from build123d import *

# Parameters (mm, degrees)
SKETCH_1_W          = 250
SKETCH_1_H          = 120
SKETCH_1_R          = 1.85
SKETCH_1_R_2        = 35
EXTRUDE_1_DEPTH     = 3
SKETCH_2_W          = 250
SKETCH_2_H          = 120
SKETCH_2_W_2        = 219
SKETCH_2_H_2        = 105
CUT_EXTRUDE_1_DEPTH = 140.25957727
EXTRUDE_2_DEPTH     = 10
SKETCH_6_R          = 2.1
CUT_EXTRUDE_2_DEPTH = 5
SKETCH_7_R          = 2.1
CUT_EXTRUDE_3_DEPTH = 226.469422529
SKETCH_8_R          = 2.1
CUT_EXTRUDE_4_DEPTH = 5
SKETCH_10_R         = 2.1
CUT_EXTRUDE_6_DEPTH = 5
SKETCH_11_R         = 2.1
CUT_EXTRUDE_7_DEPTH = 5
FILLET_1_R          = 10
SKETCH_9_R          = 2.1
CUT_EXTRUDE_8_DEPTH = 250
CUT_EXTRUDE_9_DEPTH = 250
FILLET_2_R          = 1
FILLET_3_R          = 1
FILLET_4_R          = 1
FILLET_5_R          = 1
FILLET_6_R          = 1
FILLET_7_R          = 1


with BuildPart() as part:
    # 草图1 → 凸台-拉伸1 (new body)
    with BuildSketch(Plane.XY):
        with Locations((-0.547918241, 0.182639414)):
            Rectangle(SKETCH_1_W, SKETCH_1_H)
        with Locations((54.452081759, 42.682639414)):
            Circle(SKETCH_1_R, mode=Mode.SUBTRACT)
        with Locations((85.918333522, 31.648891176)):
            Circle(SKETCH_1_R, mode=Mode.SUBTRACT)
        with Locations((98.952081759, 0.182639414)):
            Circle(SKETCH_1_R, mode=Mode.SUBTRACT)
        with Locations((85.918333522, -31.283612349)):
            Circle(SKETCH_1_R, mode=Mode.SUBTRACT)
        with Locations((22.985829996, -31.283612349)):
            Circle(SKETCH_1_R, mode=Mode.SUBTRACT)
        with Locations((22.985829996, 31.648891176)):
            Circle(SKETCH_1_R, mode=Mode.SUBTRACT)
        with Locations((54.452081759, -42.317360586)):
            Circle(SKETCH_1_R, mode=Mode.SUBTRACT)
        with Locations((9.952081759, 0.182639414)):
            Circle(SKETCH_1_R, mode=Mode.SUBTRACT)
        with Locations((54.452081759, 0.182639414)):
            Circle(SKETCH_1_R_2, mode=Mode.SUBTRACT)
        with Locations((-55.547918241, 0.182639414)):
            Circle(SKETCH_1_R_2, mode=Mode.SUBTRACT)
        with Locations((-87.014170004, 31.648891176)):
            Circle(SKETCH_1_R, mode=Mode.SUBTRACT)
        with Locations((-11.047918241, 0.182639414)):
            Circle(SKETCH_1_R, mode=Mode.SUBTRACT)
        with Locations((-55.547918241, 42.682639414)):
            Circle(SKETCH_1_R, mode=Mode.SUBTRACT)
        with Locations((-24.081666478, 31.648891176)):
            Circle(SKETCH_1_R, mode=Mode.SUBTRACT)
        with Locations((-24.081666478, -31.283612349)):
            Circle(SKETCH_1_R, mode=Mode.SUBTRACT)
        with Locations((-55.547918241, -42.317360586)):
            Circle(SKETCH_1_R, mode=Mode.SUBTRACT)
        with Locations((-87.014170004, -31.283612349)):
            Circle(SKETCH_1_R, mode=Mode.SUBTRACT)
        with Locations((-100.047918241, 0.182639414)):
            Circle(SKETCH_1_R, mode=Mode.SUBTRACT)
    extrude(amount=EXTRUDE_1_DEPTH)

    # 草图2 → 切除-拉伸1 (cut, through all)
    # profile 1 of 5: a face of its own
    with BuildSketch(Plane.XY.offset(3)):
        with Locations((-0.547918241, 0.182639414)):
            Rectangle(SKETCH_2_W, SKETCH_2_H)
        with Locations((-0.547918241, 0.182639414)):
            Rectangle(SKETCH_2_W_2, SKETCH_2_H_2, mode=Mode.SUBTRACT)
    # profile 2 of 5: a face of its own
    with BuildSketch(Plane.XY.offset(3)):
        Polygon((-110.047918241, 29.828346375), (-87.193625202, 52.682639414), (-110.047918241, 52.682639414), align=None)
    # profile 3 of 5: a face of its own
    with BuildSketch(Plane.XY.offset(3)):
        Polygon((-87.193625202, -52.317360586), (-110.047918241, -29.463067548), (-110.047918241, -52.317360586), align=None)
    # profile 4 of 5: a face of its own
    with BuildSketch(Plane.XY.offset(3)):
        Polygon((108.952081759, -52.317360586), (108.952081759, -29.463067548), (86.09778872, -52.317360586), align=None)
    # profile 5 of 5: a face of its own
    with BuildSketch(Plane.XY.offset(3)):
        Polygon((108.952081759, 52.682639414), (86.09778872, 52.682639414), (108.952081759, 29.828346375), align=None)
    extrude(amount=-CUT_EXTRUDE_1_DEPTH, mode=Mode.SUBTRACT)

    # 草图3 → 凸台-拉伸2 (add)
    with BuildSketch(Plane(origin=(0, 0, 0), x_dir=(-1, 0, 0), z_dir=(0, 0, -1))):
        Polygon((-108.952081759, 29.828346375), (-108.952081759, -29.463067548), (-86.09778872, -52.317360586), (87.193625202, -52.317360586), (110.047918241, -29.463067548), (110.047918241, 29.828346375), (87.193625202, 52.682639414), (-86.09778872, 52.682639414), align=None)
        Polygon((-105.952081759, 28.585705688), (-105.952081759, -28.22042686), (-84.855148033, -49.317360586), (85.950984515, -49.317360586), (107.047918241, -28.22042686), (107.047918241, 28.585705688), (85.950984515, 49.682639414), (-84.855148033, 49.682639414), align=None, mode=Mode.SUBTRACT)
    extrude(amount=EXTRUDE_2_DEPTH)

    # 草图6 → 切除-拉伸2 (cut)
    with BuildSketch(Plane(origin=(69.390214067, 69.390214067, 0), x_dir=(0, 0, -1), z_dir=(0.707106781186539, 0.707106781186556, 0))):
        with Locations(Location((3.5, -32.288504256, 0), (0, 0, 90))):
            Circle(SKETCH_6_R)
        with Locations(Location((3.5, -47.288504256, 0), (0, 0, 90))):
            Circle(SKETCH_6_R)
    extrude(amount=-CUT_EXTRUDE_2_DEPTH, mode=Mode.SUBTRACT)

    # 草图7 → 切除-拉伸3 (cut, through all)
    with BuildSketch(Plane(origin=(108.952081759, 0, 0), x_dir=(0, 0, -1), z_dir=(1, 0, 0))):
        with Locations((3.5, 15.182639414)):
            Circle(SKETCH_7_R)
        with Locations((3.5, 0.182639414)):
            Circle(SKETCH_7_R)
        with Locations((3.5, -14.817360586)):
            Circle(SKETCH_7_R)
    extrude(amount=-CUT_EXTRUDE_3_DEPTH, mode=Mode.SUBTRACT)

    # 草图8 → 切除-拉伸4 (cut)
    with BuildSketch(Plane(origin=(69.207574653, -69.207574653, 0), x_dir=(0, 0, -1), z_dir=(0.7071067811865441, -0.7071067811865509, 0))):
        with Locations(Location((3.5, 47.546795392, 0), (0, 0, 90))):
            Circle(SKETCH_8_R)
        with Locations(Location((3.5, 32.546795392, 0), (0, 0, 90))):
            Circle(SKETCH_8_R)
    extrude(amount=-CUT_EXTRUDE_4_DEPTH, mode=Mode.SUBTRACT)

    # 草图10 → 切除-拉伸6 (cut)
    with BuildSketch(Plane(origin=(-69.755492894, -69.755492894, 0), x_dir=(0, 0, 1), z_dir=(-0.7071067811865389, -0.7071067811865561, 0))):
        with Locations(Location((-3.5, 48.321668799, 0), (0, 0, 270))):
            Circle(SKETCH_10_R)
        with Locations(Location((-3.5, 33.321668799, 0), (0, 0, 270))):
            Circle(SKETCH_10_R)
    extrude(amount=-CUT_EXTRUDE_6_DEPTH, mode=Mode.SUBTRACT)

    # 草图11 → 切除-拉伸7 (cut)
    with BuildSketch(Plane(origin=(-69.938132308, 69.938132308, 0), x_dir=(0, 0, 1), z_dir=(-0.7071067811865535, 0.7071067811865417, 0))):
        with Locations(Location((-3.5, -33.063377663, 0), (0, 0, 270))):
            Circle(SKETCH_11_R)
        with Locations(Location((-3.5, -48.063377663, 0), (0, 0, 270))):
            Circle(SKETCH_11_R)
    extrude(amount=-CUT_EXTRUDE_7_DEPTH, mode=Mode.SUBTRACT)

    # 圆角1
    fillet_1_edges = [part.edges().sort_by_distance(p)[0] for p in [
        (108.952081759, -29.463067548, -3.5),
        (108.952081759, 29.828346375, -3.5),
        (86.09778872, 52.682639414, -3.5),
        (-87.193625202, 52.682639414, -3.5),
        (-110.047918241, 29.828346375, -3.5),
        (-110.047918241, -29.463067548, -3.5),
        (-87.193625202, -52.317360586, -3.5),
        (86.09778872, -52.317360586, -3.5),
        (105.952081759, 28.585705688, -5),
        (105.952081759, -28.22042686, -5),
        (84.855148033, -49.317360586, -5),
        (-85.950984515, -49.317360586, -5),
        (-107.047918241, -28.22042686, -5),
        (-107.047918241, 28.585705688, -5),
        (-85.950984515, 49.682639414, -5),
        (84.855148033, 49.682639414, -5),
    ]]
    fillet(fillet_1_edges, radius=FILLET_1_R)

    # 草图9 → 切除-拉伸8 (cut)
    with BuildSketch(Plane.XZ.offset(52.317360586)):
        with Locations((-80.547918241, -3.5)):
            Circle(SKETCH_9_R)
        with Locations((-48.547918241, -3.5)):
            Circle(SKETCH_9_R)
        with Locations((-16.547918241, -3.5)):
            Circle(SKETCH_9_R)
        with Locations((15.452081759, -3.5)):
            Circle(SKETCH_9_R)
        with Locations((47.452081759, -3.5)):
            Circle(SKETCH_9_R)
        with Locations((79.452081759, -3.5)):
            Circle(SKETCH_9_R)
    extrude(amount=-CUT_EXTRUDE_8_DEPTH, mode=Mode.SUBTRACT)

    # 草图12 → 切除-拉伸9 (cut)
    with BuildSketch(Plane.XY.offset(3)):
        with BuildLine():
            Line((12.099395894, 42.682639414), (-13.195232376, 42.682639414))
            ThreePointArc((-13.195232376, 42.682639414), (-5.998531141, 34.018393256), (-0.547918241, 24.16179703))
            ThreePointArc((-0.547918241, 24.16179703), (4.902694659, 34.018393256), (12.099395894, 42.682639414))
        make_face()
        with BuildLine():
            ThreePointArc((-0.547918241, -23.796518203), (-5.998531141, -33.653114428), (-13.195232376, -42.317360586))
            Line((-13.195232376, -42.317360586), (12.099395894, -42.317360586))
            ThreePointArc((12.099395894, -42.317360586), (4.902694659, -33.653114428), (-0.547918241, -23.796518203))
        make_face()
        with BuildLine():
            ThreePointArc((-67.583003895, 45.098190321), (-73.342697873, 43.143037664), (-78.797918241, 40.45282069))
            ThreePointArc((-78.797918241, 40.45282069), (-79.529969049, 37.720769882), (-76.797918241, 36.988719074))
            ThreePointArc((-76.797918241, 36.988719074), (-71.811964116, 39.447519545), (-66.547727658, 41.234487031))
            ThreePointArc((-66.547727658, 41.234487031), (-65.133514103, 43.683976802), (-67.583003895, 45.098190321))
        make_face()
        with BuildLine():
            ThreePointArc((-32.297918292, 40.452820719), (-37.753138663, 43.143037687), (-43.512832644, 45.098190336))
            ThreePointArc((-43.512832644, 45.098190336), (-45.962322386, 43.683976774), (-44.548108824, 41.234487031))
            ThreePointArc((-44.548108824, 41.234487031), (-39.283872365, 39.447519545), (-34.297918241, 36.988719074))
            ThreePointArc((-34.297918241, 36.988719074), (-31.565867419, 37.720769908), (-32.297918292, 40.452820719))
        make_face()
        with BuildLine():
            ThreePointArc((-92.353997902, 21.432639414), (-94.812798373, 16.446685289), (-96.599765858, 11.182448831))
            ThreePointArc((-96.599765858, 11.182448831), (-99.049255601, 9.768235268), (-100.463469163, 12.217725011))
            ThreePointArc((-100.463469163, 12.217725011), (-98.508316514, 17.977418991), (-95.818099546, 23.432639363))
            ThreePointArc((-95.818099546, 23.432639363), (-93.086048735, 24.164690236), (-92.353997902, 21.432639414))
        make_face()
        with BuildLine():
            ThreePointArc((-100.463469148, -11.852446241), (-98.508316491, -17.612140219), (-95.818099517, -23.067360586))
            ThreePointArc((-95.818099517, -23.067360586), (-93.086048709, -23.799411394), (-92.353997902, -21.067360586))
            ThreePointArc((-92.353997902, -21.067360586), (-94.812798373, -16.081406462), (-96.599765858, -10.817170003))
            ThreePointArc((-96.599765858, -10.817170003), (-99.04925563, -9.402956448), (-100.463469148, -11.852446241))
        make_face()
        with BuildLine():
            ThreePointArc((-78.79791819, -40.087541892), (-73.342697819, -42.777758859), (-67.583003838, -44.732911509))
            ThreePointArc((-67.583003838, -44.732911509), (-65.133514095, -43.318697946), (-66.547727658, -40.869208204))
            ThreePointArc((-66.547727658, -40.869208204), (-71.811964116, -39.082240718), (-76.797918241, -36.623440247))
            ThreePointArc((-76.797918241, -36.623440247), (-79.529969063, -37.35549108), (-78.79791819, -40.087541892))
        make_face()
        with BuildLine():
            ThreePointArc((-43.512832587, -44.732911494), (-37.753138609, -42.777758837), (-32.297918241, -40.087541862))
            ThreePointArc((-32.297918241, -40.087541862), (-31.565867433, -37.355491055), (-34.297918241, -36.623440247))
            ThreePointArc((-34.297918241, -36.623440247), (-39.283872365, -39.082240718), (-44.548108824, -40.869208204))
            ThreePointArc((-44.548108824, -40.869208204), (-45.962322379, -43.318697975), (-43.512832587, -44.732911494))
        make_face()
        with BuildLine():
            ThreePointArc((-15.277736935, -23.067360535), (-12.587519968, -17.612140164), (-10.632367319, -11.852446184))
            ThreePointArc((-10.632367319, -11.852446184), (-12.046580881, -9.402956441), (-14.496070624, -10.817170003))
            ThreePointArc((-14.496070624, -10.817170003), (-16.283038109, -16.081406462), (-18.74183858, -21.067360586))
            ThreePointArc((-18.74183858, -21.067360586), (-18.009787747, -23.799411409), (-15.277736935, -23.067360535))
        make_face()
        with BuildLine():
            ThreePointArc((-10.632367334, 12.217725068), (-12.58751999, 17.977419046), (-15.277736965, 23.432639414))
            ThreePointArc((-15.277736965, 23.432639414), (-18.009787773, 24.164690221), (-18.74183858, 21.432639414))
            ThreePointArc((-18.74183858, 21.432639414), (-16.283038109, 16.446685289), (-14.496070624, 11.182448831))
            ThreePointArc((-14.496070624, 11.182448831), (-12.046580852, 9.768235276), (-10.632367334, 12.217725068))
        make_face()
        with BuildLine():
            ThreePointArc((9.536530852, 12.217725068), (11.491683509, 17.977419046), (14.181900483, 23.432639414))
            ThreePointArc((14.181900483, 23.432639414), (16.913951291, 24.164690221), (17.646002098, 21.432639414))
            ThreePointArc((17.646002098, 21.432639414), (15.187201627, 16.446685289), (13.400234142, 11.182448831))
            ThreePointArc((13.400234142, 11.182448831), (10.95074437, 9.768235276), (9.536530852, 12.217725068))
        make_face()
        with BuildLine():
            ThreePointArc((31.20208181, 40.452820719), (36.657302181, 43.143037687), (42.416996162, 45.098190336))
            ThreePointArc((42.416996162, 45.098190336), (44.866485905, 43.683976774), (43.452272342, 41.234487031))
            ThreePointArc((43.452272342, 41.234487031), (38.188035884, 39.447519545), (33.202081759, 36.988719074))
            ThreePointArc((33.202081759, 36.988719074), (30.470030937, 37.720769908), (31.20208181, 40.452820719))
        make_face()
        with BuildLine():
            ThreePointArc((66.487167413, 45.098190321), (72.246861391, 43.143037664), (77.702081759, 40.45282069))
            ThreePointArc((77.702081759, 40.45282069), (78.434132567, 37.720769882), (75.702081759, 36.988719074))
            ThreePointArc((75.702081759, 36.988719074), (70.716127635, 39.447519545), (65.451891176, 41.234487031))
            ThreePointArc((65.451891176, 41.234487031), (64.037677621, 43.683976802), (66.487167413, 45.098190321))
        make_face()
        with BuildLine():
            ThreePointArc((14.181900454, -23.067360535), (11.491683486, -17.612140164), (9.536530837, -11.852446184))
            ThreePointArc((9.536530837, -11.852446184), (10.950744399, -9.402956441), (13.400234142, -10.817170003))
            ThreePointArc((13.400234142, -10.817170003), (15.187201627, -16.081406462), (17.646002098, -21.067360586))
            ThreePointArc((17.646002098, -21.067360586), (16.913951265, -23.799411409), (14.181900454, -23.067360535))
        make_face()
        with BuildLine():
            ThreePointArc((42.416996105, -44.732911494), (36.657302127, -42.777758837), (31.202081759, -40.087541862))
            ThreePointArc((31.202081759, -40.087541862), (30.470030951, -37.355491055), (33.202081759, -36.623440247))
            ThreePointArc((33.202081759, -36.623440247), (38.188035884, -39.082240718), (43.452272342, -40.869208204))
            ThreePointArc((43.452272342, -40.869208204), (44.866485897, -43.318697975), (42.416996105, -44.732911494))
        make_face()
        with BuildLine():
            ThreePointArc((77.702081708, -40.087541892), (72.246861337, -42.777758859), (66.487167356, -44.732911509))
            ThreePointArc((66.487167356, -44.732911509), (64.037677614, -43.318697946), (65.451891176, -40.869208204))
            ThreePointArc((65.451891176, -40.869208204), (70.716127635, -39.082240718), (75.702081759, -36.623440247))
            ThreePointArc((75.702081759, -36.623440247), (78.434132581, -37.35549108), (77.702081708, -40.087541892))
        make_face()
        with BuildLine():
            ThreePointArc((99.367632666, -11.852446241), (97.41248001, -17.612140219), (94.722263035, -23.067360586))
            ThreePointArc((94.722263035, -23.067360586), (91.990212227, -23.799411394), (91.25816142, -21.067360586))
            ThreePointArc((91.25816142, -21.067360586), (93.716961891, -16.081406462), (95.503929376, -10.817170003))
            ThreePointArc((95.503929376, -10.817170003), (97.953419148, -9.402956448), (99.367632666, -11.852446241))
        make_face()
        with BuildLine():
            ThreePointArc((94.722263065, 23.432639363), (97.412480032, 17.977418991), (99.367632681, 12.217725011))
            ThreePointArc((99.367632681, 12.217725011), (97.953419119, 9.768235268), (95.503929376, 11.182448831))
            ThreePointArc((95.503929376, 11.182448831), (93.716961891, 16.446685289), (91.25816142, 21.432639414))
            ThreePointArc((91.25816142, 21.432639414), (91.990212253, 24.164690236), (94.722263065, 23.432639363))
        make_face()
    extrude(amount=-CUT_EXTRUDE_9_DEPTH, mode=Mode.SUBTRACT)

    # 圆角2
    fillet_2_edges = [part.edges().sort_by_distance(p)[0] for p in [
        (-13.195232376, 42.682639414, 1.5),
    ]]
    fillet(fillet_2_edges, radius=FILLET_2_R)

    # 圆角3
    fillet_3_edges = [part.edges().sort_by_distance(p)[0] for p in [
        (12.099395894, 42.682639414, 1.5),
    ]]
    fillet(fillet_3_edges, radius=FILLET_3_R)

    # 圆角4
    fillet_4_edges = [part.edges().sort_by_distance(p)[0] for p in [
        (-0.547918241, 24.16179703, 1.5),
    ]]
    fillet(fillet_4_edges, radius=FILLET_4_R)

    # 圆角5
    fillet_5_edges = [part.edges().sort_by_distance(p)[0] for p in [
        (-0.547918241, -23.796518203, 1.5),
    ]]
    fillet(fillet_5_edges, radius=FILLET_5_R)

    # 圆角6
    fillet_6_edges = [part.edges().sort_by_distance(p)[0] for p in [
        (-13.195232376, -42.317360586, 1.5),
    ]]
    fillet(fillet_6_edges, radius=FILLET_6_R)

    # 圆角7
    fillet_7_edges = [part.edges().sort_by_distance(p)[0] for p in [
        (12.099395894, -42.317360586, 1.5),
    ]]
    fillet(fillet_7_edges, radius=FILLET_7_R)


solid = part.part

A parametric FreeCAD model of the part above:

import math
import FreeCAD as App
import Part
import Sketcher

V = App.Vector
Q = App.Units.Quantity


def edges_at(feature, points):
    """Names of the edges that pass closest to the given points."""
    edges = feature.Shape.Edges
    near = lambda p: min(range(len(edges)), key=lambda i: edges[i].distToShape(Part.Vertex(*p))[0])
    return sorted({f"Edge{near(p) + 1}" for p in points})


def add_polygon(sketch, points):
    """Adds a closed chain of lines whose ends are joined by coincident constraints."""
    first, n = sketch.GeometryCount, len(points)
    for a, b in zip(points, points[1:] + points[:1]):
        sketch.addGeometry(Part.LineSegment(App.Vector(*a, 0), App.Vector(*b, 0)), False)
    for i in range(n):
        sketch.addConstraint(Sketcher.Constraint("Coincident", first + i, 2, first + (i + 1) % n, 1))

doc = App.newDocument("Part")
body = doc.addObject("PartDesign::Body", "Body")

sketch1 = body.newObject("Sketcher::SketchObject", "Sketch")
sketch1.AttachmentSupport = (doc.getObject("XY_Plane"), [""])
sketch1.MapMode = "FlatFace"
add_polygon(sketch1, [(-125.5, 60.2), (-125.5, -59.8), (124.5, -59.8), (124.5, 60.2)])
sketch1.addGeometry(Part.Circle(V(-55.5, -42.3, 0), V(0, 0, 1), 1.9), False)
sketch1.addGeometry(Part.Circle(V(-87, -31.3, 0), V(0, 0, 1), 1.9), False)
sketch1.addGeometry(Part.Circle(V(-24.1, -31.3, 0), V(0, 0, 1), 1.9), False)
sketch1.addGeometry(Part.Circle(V(23, -31.3, 0), V(0, 0, 1), 1.9), False)
sketch1.addGeometry(Part.Circle(V(54.5, -42.3, 0), V(0, 0, 1), 1.9), False)
sketch1.addGeometry(Part.Circle(V(85.9, -31.3, 0), V(0, 0, 1), 1.9), False)
sketch1.addGeometry(Part.Circle(V(-100, 0.2, 0), V(0, 0, 1), 1.9), False)
sketch1.addGeometry(Part.Circle(V(-55.5, 0.2, 0), V(0, 0, 1), 35), False)
sketch1.addGeometry(Part.Circle(V(-11, 0.2, 0), V(0, 0, 1), 1.9), False)
sketch1.addGeometry(Part.Circle(V(-87, 31.6, 0), V(0, 0, 1), 1.9), False)
sketch1.addGeometry(Part.Circle(V(-55.5, 42.7, 0), V(0, 0, 1), 1.9), False)
sketch1.addGeometry(Part.Circle(V(-24.1, 31.6, 0), V(0, 0, 1), 1.9), False)
sketch1.addGeometry(Part.Circle(V(10, 0.2, 0), V(0, 0, 1), 1.9), False)
sketch1.addGeometry(Part.Circle(V(54.5, 0.2, 0), V(0, 0, 1), 35), False)
sketch1.addGeometry(Part.Circle(V(99, 0.2, 0), V(0, 0, 1), 1.9), False)
sketch1.addGeometry(Part.Circle(V(23, 31.6, 0), V(0, 0, 1), 1.9), False)
sketch1.addGeometry(Part.Circle(V(85.9, 31.6, 0), V(0, 0, 1), 1.9), False)
sketch1.addGeometry(Part.Circle(V(54.5, 42.7, 0), V(0, 0, 1), 1.9), False)
sketch1.addConstraint([
    Sketcher.Constraint("Vertical", 0),
    Sketcher.Constraint("Horizontal", 1),
    Sketcher.Constraint("Vertical", 2),
    Sketcher.Constraint("Horizontal", 3),
    Sketcher.Constraint("Equal", 4, 5),
    Sketcher.Constraint("Equal", 5, 6),
    Sketcher.Constraint("Equal", 6, 7),
    Sketcher.Constraint("Equal", 7, 8),
    Sketcher.Constraint("Equal", 8, 9),
    Sketcher.Constraint("Equal", 9, 10),
    Sketcher.Constraint("Equal", 10, 12),
    Sketcher.Constraint("Equal", 12, 13),
    Sketcher.Constraint("Equal", 13, 14),
    Sketcher.Constraint("Equal", 14, 15),
    Sketcher.Constraint("Equal", 15, 16),
    Sketcher.Constraint("Equal", 11, 17),
    Sketcher.Constraint("Equal", 16, 18),
    Sketcher.Constraint("Equal", 18, 19),
    Sketcher.Constraint("Equal", 19, 20),
    Sketcher.Constraint("Equal", 20, 21),
    Sketcher.Constraint("Horizontal", 5, 3, 6, 3),
    Sketcher.Constraint("Horizontal", 6, 3, 7, 3),
    Sketcher.Constraint("Horizontal", 4, 3, 8, 3),
    Sketcher.Constraint("Horizontal", 7, 3, 9, 3),
    Sketcher.Constraint("Horizontal", 10, 3, 11, 3),
    Sketcher.Constraint("Horizontal", 11, 3, 12, 3),
    Sketcher.Constraint("Horizontal", 13, 3, 15, 3),
    Sketcher.Constraint("Horizontal", 12, 3, 16, 3),
    Sketcher.Constraint("Horizontal", 16, 3, 17, 3),
    Sketcher.Constraint("Horizontal", 17, 3, 18, 3),
    Sketcher.Constraint("Horizontal", 15, 3, 19, 3),
    Sketcher.Constraint("Horizontal", 19, 3, 20, 3),
    Sketcher.Constraint("Horizontal", 14, 3, 21, 3),
    Sketcher.Constraint("Vertical", 4, 3, 11, 3),
    Sketcher.Constraint("Vertical", 5, 3, 13, 3),
    Sketcher.Constraint("Vertical", 11, 3, 14, 3),
    Sketcher.Constraint("Vertical", 6, 3, 15, 3),
    Sketcher.Constraint("Vertical", 8, 3, 17, 3),
    Sketcher.Constraint("Vertical", 7, 3, 19, 3),
    Sketcher.Constraint("Vertical", 9, 3, 20, 3),
    Sketcher.Constraint("Vertical", 17, 3, 21, 3),
    Sketcher.Constraint("Diameter", 11, Q("70 mm")),
    Sketcher.Constraint("Diameter", 4, Q("3.7 mm")),
    Sketcher.Constraint("DistanceX", 1, 1, 1, 2, Q("250 mm")),
    Sketcher.Constraint("DistanceY", 0, 2, 0, 1, Q("120 mm")),
    Sketcher.Constraint("DistanceX", 5, 3, 7, 3, Q("110 mm")),
    Sketcher.Constraint("DistanceX", 4, 3, 8, 3, Q("110 mm")),
    Sketcher.Constraint("DistanceX", 6, 3, 9, 3, Q("110 mm")),
    Sketcher.Constraint("DistanceX", 12, 3, 16, 3, Q("21 mm")),
    Sketcher.Constraint("DistanceX", 16, 3, 18, 3, Q("89 mm")),
    Sketcher.Constraint("DistanceY", 0, 2, 10, 3, Q("60 mm")),
    Sketcher.Constraint("DistanceX", 0, 2, 4, 3, Q("70 mm")),
    Sketcher.Constraint("DistanceX", 10, 3, 4, 3, Q("44.5 mm")),
    Sketcher.Constraint("DistanceY", 4, 3, 10, 3, Q("42.5 mm")),
    Sketcher.Constraint("DistanceX", 11, 3, 12, 3, Q("44.5 mm")),
    Sketcher.Constraint("DistanceY", 11, 3, 14, 3, Q("42.5 mm")),
    Sketcher.Constraint("DistanceX", 4, 3, -1, 1, Q("55.547918 mm")),
    Sketcher.Constraint("DistanceY", 4, 3, -1, 1, Q("42.317361 mm")),
    Sketcher.Constraint("DistanceX", 5, 3, -1, 1, Q("87.01417 mm")),
    Sketcher.Constraint("DistanceY", -1, 1, 13, 3, Q("31.648891 mm")),
    Sketcher.Constraint("DistanceY", 4, 3, 5, 3, Q("11.033748 mm")),
    Sketcher.Constraint("DistanceX", 4, 3, 6, 3, Q("31.466252 mm")),
])
pad1 = body.newObject("PartDesign::Pad", "Pad")
pad1.Profile = sketch1
pad1.Length = 3

sketch2 = body.newObject("Sketcher::SketchObject", "Sketch001")
sketch2.AttachmentSupport = (doc.getObject("XY_Plane"), [""])
sketch2.MapMode = "FlatFace"
sketch2.AttachmentOffset = App.Placement(V(0, 0, 3), App.Rotation())
add_polygon(sketch2, [(-126, 60), (-126, -60), (124, -60), (124, 60)])
add_polygon(sketch2, [(86, -52), (-87, -52), (-110, -29), (-110, 30), (-87, 53), (86, 53), (109, 30), (109, -29)])
sketch2.addConstraint([
    Sketcher.Constraint("Vertical", 0),
    Sketcher.Constraint("Horizontal", 1),
    Sketcher.Constraint("Vertical", 2),
    Sketcher.Constraint("Horizontal", 3),
    Sketcher.Constraint("Horizontal", 4),
    Sketcher.Constraint("Vertical", 6),
    Sketcher.Constraint("Horizontal", 8),
    Sketcher.Constraint("Vertical", 10),
    Sketcher.Constraint("Perpendicular", 5, 7),
    Sketcher.Constraint("Perpendicular", 7, 9),
    Sketcher.Constraint("Perpendicular", 9, 11),
    Sketcher.Constraint("Horizontal", 6, 2, 9, 2),
    Sketcher.Constraint("Horizontal", 5, 2, 10, 2),
    Sketcher.Constraint("Vertical", 4, 2, 7, 2),
    Sketcher.Constraint("Vertical", 8, 2, 11, 2),
    Sketcher.Constraint("DistanceX", 1, 1, 1, 2, Q("250 mm")),
    Sketcher.Constraint("DistanceY", 0, 2, 0, 1, Q("120 mm")),
    Sketcher.Constraint("DistanceY", 4, 2, 7, 2, Q("105 mm")),
    Sketcher.Constraint("DistanceY", 0, 2, 4, 2, Q("7.5 mm")),
    Sketcher.Constraint("DistanceX", 0, 2, 5, 2, Q("15.5 mm")),
    Sketcher.Constraint("DistanceX", 9, 2, 2, 2, Q("15.5 mm")),
    Sketcher.Constraint("Distance", 5, Q("32.320851 mm")),
    Sketcher.Constraint("DistanceX", 0, 2, -1, 1, Q("125.547918 mm")),
    Sketcher.Constraint("DistanceY", 0, 2, -1, 1, Q("59.817361 mm")),
])
pocket1 = body.newObject("PartDesign::Pocket", "Pocket")
pocket1.Profile = sketch2
pocket1.Length = 140.259577

sketch3 = body.newObject("Sketcher::SketchObject", "Sketch002")
sketch3.AttachmentSupport = (doc.getObject("XY_Plane"), [""])
sketch3.MapMode = "FlatFace"
add_polygon(sketch3, [(109, 30), (109, -29), (86, -52), (-87, -52), (-110, -29), (-110, 30), (-87, 53), (86, 53)])
add_polygon(sketch3, [(106, -28), (106, 29), (85, 50), (-86, 50), (-107, 29), (-107, -28), (-86, -49), (85, -49)])
sketch3.addConstraint([
    Sketcher.Constraint("Vertical", 0),
    Sketcher.Constraint("Horizontal", 2),
    Sketcher.Constraint("Vertical", 4),
    Sketcher.Constraint("Horizontal", 6),
    Sketcher.Constraint("Vertical", 8),
    Sketcher.Constraint("Horizontal", 10),
    Sketcher.Constraint("Vertical", 12),
    Sketcher.Constraint("Horizontal", 14),
    Sketcher.Constraint("Perpendicular", 1, 3),
    Sketcher.Constraint("Perpendicular", 3, 5),
    Sketcher.Constraint("Perpendicular", 5, 7),
    Sketcher.Constraint("Parallel", 7, 9),
    Sketcher.Constraint("Perpendicular", 9, 11),
    Sketcher.Constraint("Perpendicular", 11, 13),
    Sketcher.Constraint("Perpendicular", 13, 15),
    Sketcher.Constraint("Horizontal", 0, 2, 3, 2),
    Sketcher.Constraint("Horizontal", 4, 2, 7, 2),
    Sketcher.Constraint("Horizontal", 8, 2, 11, 2),
    Sketcher.Constraint("Horizontal", 12, 2, 15, 2),
    Sketcher.Constraint("Vertical", 2, 2, 5, 2),
    Sketcher.Constraint("Vertical", 1, 2, 6, 2),
    Sketcher.Constraint("Vertical", 10, 2, 13, 2),
    Sketcher.Constraint("DistanceX", 3, 2, 0, 2, Q("219 mm")),
    Sketcher.Constraint("DistanceY", 2, 2, 5, 2, Q("105 mm")),
    Sketcher.Constraint("DistanceX", 8, 2, 7, 2, Q("3 mm")),
    Sketcher.Constraint("DistanceY", 9, 2, 6, 2, Q("3 mm")),
    Sketcher.Constraint("DistanceX", 4, 2, 11, 2, Q("3 mm")),
    Sketcher.Constraint("DistanceY", 2, 2, 13, 2, Q("3 mm")),
    Sketcher.Constraint("Distance", 1, Q("32.320851 mm")),
    Sketcher.Constraint("Distance", 9, Q("29.83557 mm")),
    Sketcher.Constraint("DistanceX", -1, 1, 0, 2, Q("108.952082 mm")),
    Sketcher.Constraint("DistanceY", 1, 2, -1, 1, Q("52.317361 mm")),
])
pad2 = body.newObject("PartDesign::Pad", "Pad001")
pad2.Profile = sketch3
pad2.Length = 10
pad2.Reversed = True

sketch4 = body.newObject("Sketcher::SketchObject", "Sketch003")
sketch4.Placement = App.Placement(V(69.390214, 69.390214, 0), App.Rotation(V(0, 0, -1), V(-0.707106781, 0.707106781, 0), V(0.707106781, 0.707106781, 0), "ZXY"))
sketch4.addGeometry([
    Part.Circle(V(3.5, -32.3, 0), V(0, 0, 1), 2.1),
    Part.Circle(V(3.5, -47.3, 0), V(0, 0, 1), 2.1),
], False)
sketch4.addConstraint([
    Sketcher.Constraint("Equal", 0, 1),
    Sketcher.Constraint("Vertical", 0, 3, 1, 3),
    Sketcher.Constraint("Diameter", 0, Q("4.2 mm")),
    Sketcher.Constraint("DistanceY", 1, 3, 0, 3, Q("15 mm")),
    Sketcher.Constraint("DistanceX", -1, 1, 0, 3, Q("3.5 mm")),
    Sketcher.Constraint("DistanceY", 0, 3, -1, 1, Q("32.288504 mm")),
])
pocket2 = body.newObject("PartDesign::Pocket", "Pocket001")
pocket2.Profile = sketch4
pocket2.Length = 5

sketch5 = body.newObject("Sketcher::SketchObject", "Sketch004")
sketch5.AttachmentSupport = (doc.getObject("YZ_Plane"), [""])
sketch5.MapMode = "FlatFace"
sketch5.AttachmentOffset = App.Placement(V(0, 0, 108.952082), App.Rotation())
sketch5.addGeometry([
    Part.Circle(V(15.2, -3.5, 0), V(0, 0, 1), 2.1),
    Part.Circle(V(0.2, -3.5, 0), V(0, 0, 1), 2.1),
    Part.Circle(V(-14.8, -3.5, 0), V(0, 0, 1), 2.1),
], False)
sketch5.addConstraint([
    Sketcher.Constraint("Equal", 0, 1),
    Sketcher.Constraint("Equal", 1, 2),
    Sketcher.Constraint("Horizontal", 0, 3, 1, 3),
    Sketcher.Constraint("Horizontal", 1, 3, 2, 3),
    Sketcher.Constraint("Diameter", 0, Q("4.2 mm")),
    Sketcher.Constraint("DistanceX", 1, 3, 0, 3, Q("15 mm")),
    Sketcher.Constraint("DistanceX", 2, 3, 1, 3, Q("15 mm")),
    Sketcher.Constraint("DistanceY", 0, 3, -1, 1, Q("3.5 mm")),
    Sketcher.Constraint("DistanceX", -1, 1, 0, 3, Q("15.182639 mm")),
])
pocket3 = body.newObject("PartDesign::Pocket", "Pocket002")
pocket3.Profile = sketch5
pocket3.Type = "ThroughAll"

sketch6 = body.newObject("Sketcher::SketchObject", "Sketch005")
sketch6.Placement = App.Placement(V(69.207575, -69.207575, 0), App.Rotation(V(0, 0, -1), V(0.707106781, 0.707106781, 0), V(0.707106781, -0.707106781, 0), "ZXY"))
sketch6.addGeometry([
    Part.Circle(V(3.5, 47.5, 0), V(0, 0, 1), 2.1),
    Part.Circle(V(3.5, 32.5, 0), V(0, 0, 1), 2.1),
], False)
sketch6.addConstraint([
    Sketcher.Constraint("Equal", 0, 1),
    Sketcher.Constraint("Vertical", 0, 3, 1, 3),
    Sketcher.Constraint("Diameter", 0, Q("4.2 mm")),
    Sketcher.Constraint("DistanceY", 1, 3, 0, 3, Q("15 mm")),
    Sketcher.Constraint("DistanceX", -1, 1, 0, 3, Q("3.5 mm")),
    Sketcher.Constraint("DistanceY", -1, 1, 0, 3, Q("47.546795 mm")),
])
pocket4 = body.newObject("PartDesign::Pocket", "Pocket003")
pocket4.Profile = sketch6
pocket4.Length = 5

sketch7 = body.newObject("Sketcher::SketchObject", "Sketch006")
sketch7.Placement = App.Placement(V(-69.755493, -69.755493, 0), App.Rotation(V(0, 0, 1), V(-0.707106781, 0.707106781, 0), V(-0.707106781, -0.707106781, 0), "ZXY"))
sketch7.addGeometry([
    Part.Circle(V(-3.5, 48.3, 0), V(0, 0, 1), 2.1),
    Part.Circle(V(-3.5, 33.3, 0), V(0, 0, 1), 2.1),
], False)
sketch7.addConstraint([
    Sketcher.Constraint("Equal", 0, 1),
    Sketcher.Constraint("Vertical", 0, 3, 1, 3),
    Sketcher.Constraint("Diameter", 0, Q("4.2 mm")),
    Sketcher.Constraint("DistanceY", 1, 3, 0, 3, Q("15 mm")),
    Sketcher.Constraint("DistanceX", 0, 3, -1, 1, Q("3.5 mm")),
    Sketcher.Constraint("DistanceY", -1, 1, 0, 3, Q("48.321669 mm")),
])
pocket5 = body.newObject("PartDesign::Pocket", "Pocket004")
pocket5.Profile = sketch7
pocket5.Length = 5

sketch8 = body.newObject("Sketcher::SketchObject", "Sketch007")
sketch8.Placement = App.Placement(V(-69.938132, 69.938132, 0), App.Rotation(V(0, 0, 1), V(0.707106781, 0.707106781, 0), V(-0.707106781, 0.707106781, 0), "ZXY"))
sketch8.addGeometry([
    Part.Circle(V(-3.5, -33.1, 0), V(0, 0, 1), 2.1),
    Part.Circle(V(-3.5, -48.1, 0), V(0, 0, 1), 2.1),
], False)
sketch8.addConstraint([
    Sketcher.Constraint("Equal", 0, 1),
    Sketcher.Constraint("Vertical", 0, 3, 1, 3),
    Sketcher.Constraint("Diameter", 0, Q("4.2 mm")),
    Sketcher.Constraint("DistanceY", 1, 3, 0, 3, Q("15 mm")),
    Sketcher.Constraint("DistanceX", 0, 3, -1, 1, Q("3.5 mm")),
    Sketcher.Constraint("DistanceY", 0, 3, -1, 1, Q("33.063378 mm")),
])
pocket6 = body.newObject("PartDesign::Pocket", "Pocket005")
pocket6.Profile = sketch8
pocket6.Length = 5
doc.recompute()

fillet = body.newObject("PartDesign::Fillet", "Fillet")
fillet.Base = (pocket6, edges_at(pocket6, [
    (108.952, -29.463, -3.5),
    (108.952, 29.828, -3.5),
    (86.098, 52.683, -3.5),
    (-87.194, 52.683, -3.5),
    (-110.048, 29.828, -3.5),
    (-110.048, -29.463, -3.5),
    (-87.194, -52.317, -3.5),
    (86.098, -52.317, -3.5),
    (105.952, 28.586, -5),
    (105.952, -28.22, -5),
    (84.855, -49.317, -5),
    (-85.951, -49.317, -5),
    (-107.048, -28.22, -5),
    (-107.048, 28.586, -5),
    (-85.951, 49.683, -5),
    (84.855, 49.683, -5),
]))
fillet.Radius = 10

sketch9 = body.newObject("Sketcher::SketchObject", "Sketch008")
sketch9.AttachmentSupport = (doc.getObject("XZ_Plane"), [""])
sketch9.MapMode = "FlatFace"
sketch9.AttachmentOffset = App.Placement(V(0, 0, 52.317361), App.Rotation())
sketch9.addGeometry([
    Part.Circle(V(-80.5, -3.5, 0), V(0, 0, 1), 2.1),
    Part.Circle(V(-48.5, -3.5, 0), V(0, 0, 1), 2.1),
    Part.Circle(V(-16.5, -3.5, 0), V(0, 0, 1), 2.1),
    Part.Circle(V(15.5, -3.5, 0), V(0, 0, 1), 2.1),
    Part.Circle(V(47.5, -3.5, 0), V(0, 0, 1), 2.1),
    Part.Circle(V(79.5, -3.5, 0), V(0, 0, 1), 2.1),
], False)
sketch9.addConstraint([
    Sketcher.Constraint("Equal", 0, 1),
    Sketcher.Constraint("Equal", 1, 2),
    Sketcher.Constraint("Equal", 2, 3),
    Sketcher.Constraint("Equal", 3, 4),
    Sketcher.Constraint("Equal", 4, 5),
    Sketcher.Constraint("Horizontal", 0, 3, 1, 3),
    Sketcher.Constraint("Horizontal", 1, 3, 2, 3),
    Sketcher.Constraint("Horizontal", 2, 3, 3, 3),
    Sketcher.Constraint("Horizontal", 3, 3, 4, 3),
    Sketcher.Constraint("Horizontal", 4, 3, 5, 3),
    Sketcher.Constraint("Diameter", 0, Q("4.2 mm")),
    Sketcher.Constraint("DistanceX", 0, 3, 1, 3, Q("32 mm")),
    Sketcher.Constraint("DistanceX", 1, 3, 2, 3, Q("32 mm")),
    Sketcher.Constraint("DistanceX", 2, 3, 3, 3, Q("32 mm")),
    Sketcher.Constraint("DistanceX", 3, 3, 4, 3, Q("32 mm")),
    Sketcher.Constraint("DistanceX", 4, 3, 5, 3, Q("32 mm")),
    Sketcher.Constraint("DistanceY", 0, 3, -1, 1, Q("3.5 mm")),
    Sketcher.Constraint("DistanceX", 0, 3, -1, 1, Q("80.547918 mm")),
])
pocket7 = body.newObject("PartDesign::Pocket", "Pocket006")
pocket7.Profile = sketch9
pocket7.Length = 250

sketch10 = body.newObject("Sketcher::SketchObject", "Sketch009")
sketch10.AttachmentSupport = (doc.getObject("XY_Plane"), [""])
sketch10.MapMode = "FlatFace"
sketch10.AttachmentOffset = App.Placement(V(0, 0, 3), App.Rotation())
sketch10.addGeometry([
    Part.LineSegment(V(12.1, 42.7, 0), V(-13.2, 42.7, 0)),
    Part.ArcOfCircle(Part.Circle(V(-55.5, 0.2, 0), V(0, 0, 1), 60), math.radians(24), math.radians(45)),
    Part.ArcOfCircle(Part.Circle(V(54.5, 0.2, 0), V(0, 0, 1), 60), math.radians(135), math.radians(156)),
    Part.ArcOfCircle(Part.Circle(V(-55.5, 0.2, 0), V(0, 0, 1), 60), math.radians(-45), math.radians(-24)),
    Part.LineSegment(V(-13.2, -42.3, 0), V(12.1, -42.3, 0)),
    Part.ArcOfCircle(Part.Circle(V(54.5, 0.2, 0), V(0, 0, 1), 60), math.radians(-156), math.radians(-135)),
    Part.ArcOfCircle(Part.Circle(V(-55.5, 0.2, 0), V(0, 0, 1), 46.5), math.radians(105), math.radians(120)),
    Part.ArcOfCircle(Part.Circle(V(-77.8, 38.7, 0), V(0, 0, 1), 2), math.radians(120), math.radians(300)),
    Part.ArcOfCircle(Part.Circle(V(-55.5, 0.2, 0), V(0, 0, 1), 42.5), math.radians(105), math.radians(120)),
    Part.ArcOfCircle(Part.Circle(V(-67.1, 43.2, 0), V(0, 0, 1), 2), math.radians(-75), math.radians(105)),
    Part.ArcOfCircle(Part.Circle(V(-55.5, 0.2, 0), V(0, 0, 1), 46.5), math.radians(60), math.radians(75)),
    Part.ArcOfCircle(Part.Circle(V(-44, 43.2, 0), V(0, 0, 1), 2), math.radians(75), math.radians(255)),
    Part.ArcOfCircle(Part.Circle(V(-55.5, 0.2, 0), V(0, 0, 1), 42.5), math.radians(60), math.radians(75)),
    Part.ArcOfCircle(Part.Circle(V(-33.3, 38.7, 0), V(0, 0, 1), 2), math.radians(-120), math.radians(60)),
    Part.ArcOfCircle(Part.Circle(V(-55.5, 0.2, 0), V(0, 0, 1), 42.5), math.radians(150), math.radians(165)),
    Part.ArcOfCircle(Part.Circle(V(-94.1, 22.4, 0), V(0, 0, 1), 2), math.radians(-30), math.radians(150)),
    Part.ArcOfCircle(Part.Circle(V(-55.5, 0.2, 0), V(0, 0, 1), 46.5), math.radians(150), math.radians(165)),
    Part.ArcOfCircle(Part.Circle(V(-98.5, 11.7, 0), V(0, 0, 1), 2), math.radians(165), math.radians(345)),
    Part.ArcOfCircle(Part.Circle(V(-55.5, 0.2, 0), V(0, 0, 1), 46.5), math.radians(-165), math.radians(-150)),
    Part.ArcOfCircle(Part.Circle(V(-94.1, -22.1, 0), V(0, 0, 1), 2), math.radians(-150), math.radians(30)),
    Part.ArcOfCircle(Part.Circle(V(-55.5, 0.2, 0), V(0, 0, 1), 42.5), math.radians(-165), math.radians(-150)),
    Part.ArcOfCircle(Part.Circle(V(-98.5, -11.3, 0), V(0, 0, 1), 2), math.radians(15), math.radians(195)),
    Part.ArcOfCircle(Part.Circle(V(-55.5, 0.2, 0), V(0, 0, 1), 46.5), math.radians(-120), math.radians(-105)),
    Part.ArcOfCircle(Part.Circle(V(-67.1, -42.8, 0), V(0, 0, 1), 2), math.radians(-105), math.radians(75)),
    Part.ArcOfCircle(Part.Circle(V(-55.5, 0.2, 0), V(0, 0, 1), 42.5), math.radians(-120), math.radians(-105)),
    Part.ArcOfCircle(Part.Circle(V(-77.8, -38.4, 0), V(0, 0, 1), 2), math.radians(60), math.radians(240)),
    Part.ArcOfCircle(Part.Circle(V(-55.5, 0.2, 0), V(0, 0, 1), 46.5), math.radians(-75), math.radians(-60)),
    Part.ArcOfCircle(Part.Circle(V(-33.3, -38.4, 0), V(0, 0, 1), 2), math.radians(-60), math.radians(120)),
    Part.ArcOfCircle(Part.Circle(V(-55.5, 0.2, 0), V(0, 0, 1), 42.5), math.radians(-75), math.radians(-60)),
    Part.ArcOfCircle(Part.Circle(V(-44, -42.8, 0), V(0, 0, 1), 2), math.radians(105), math.radians(285)),
    Part.ArcOfCircle(Part.Circle(V(-55.5, 0.2, 0), V(0, 0, 1), 46.5), math.radians(-30), math.radians(-15)),
    Part.ArcOfCircle(Part.Circle(V(-12.6, -11.3, 0), V(0, 0, 1), 2), math.radians(-15), math.radians(165)),
    Part.ArcOfCircle(Part.Circle(V(-55.5, 0.2, 0), V(0, 0, 1), 42.5), math.radians(-30), math.radians(-15)),
    Part.ArcOfCircle(Part.Circle(V(-17, -22.1, 0), V(0, 0, 1), 2), math.radians(150), math.radians(330)),
    Part.ArcOfCircle(Part.Circle(V(-55.5, 0.2, 0), V(0, 0, 1), 46.5), math.radians(15), math.radians(30)),
    Part.ArcOfCircle(Part.Circle(V(-17, 22.4, 0), V(0, 0, 1), 2), math.radians(30), math.radians(210)),
    Part.ArcOfCircle(Part.Circle(V(-55.5, 0.2, 0), V(0, 0, 1), 42.5), math.radians(15), math.radians(30)),
    Part.ArcOfCircle(Part.Circle(V(-12.6, 11.7, 0), V(0, 0, 1), 2), math.radians(-165), math.radians(15)),
    Part.ArcOfCircle(Part.Circle(V(54.5, 0.2, 0), V(0, 0, 1), 46.5), math.radians(150), math.radians(165)),
    Part.ArcOfCircle(Part.Circle(V(11.5, 11.7, 0), V(0, 0, 1), 2), math.radians(165), math.radians(345)),
    Part.ArcOfCircle(Part.Circle(V(54.5, 0.2, 0), V(0, 0, 1), 42.5), math.radians(150), math.radians(165)),
    Part.ArcOfCircle(Part.Circle(V(15.9, 22.4, 0), V(0, 0, 1), 2), math.radians(-30), math.radians(150)),
    Part.ArcOfCircle(Part.Circle(V(54.5, 0.2, 0), V(0, 0, 1), 46.5), math.radians(105), math.radians(120)),
    Part.ArcOfCircle(Part.Circle(V(32.2, 38.7, 0), V(0, 0, 1), 2), math.radians(120), math.radians(300)),
    Part.ArcOfCircle(Part.Circle(V(54.5, 0.2, 0), V(0, 0, 1), 42.5), math.radians(105), math.radians(120)),
    Part.ArcOfCircle(Part.Circle(V(42.9, 43.2, 0), V(0, 0, 1), 2), math.radians(-75), math.radians(105)),
    Part.ArcOfCircle(Part.Circle(V(54.5, 0.2, 0), V(0, 0, 1), 46.5), math.radians(60), math.radians(75)),
    Part.ArcOfCircle(Part.Circle(V(66, 43.2, 0), V(0, 0, 1), 2), math.radians(75), math.radians(255)),
    Part.ArcOfCircle(Part.Circle(V(54.5, 0.2, 0), V(0, 0, 1), 42.5), math.radians(60), math.radians(75)),
    Part.ArcOfCircle(Part.Circle(V(76.7, 38.7, 0), V(0, 0, 1), 2), math.radians(-120), math.radians(60)),
    Part.ArcOfCircle(Part.Circle(V(54.5, 0.2, 0), V(0, 0, 1), 46.5), math.radians(-165), math.radians(-150)),
    Part.ArcOfCircle(Part.Circle(V(15.9, -22.1, 0), V(0, 0, 1), 2), math.radians(-150), math.radians(30)),
    Part.ArcOfCircle(Part.Circle(V(54.5, 0.2, 0), V(0, 0, 1), 42.5), math.radians(-165), math.radians(-150)),
    Part.ArcOfCircle(Part.Circle(V(11.5, -11.3, 0), V(0, 0, 1), 2), math.radians(15), math.radians(195)),
    Part.ArcOfCircle(Part.Circle(V(54.5, 0.2, 0), V(0, 0, 1), 46.5), math.radians(-120), math.radians(-105)),
    Part.ArcOfCircle(Part.Circle(V(42.9, -42.8, 0), V(0, 0, 1), 2), math.radians(-105), math.radians(75)),
    Part.ArcOfCircle(Part.Circle(V(54.5, 0.2, 0), V(0, 0, 1), 42.5), math.radians(-120), math.radians(-105)),
    Part.ArcOfCircle(Part.Circle(V(32.2, -38.4, 0), V(0, 0, 1), 2), math.radians(60), math.radians(240)),
    Part.ArcOfCircle(Part.Circle(V(54.5, 0.2, 0), V(0, 0, 1), 46.5), math.radians(-75), math.radians(-60)),
    Part.ArcOfCircle(Part.Circle(V(76.7, -38.4, 0), V(0, 0, 1), 2), math.radians(-60), math.radians(120)),
    Part.ArcOfCircle(Part.Circle(V(54.5, 0.2, 0), V(0, 0, 1), 42.5), math.radians(-75), math.radians(-60)),
    Part.ArcOfCircle(Part.Circle(V(66, -42.8, 0), V(0, 0, 1), 2), math.radians(105), math.radians(285)),
    Part.ArcOfCircle(Part.Circle(V(54.5, 0.2, 0), V(0, 0, 1), 46.5), math.radians(-30), math.radians(-15)),
    Part.ArcOfCircle(Part.Circle(V(97.4, -11.3, 0), V(0, 0, 1), 2), math.radians(-15), math.radians(165)),
    Part.ArcOfCircle(Part.Circle(V(54.5, 0.2, 0), V(0, 0, 1), 42.5), math.radians(-30), math.radians(-15)),
    Part.ArcOfCircle(Part.Circle(V(93, -22.1, 0), V(0, 0, 1), 2), math.radians(150), math.radians(330)),
    Part.ArcOfCircle(Part.Circle(V(54.5, 0.2, 0), V(0, 0, 1), 46.5), math.radians(15), math.radians(30)),
    Part.ArcOfCircle(Part.Circle(V(93, 22.4, 0), V(0, 0, 1), 2), math.radians(30), math.radians(210)),
    Part.ArcOfCircle(Part.Circle(V(54.5, 0.2, 0), V(0, 0, 1), 42.5), math.radians(15), math.radians(30)),
    Part.ArcOfCircle(Part.Circle(V(97.4, 11.7, 0), V(0, 0, 1), 2), math.radians(-165), math.radians(15)),
], False)
sketch10.addConstraint([
    Sketcher.Constraint("Coincident", 0, 2, 1, 2),
    Sketcher.Constraint("Coincident", 1, 1, 2, 2),
    Sketcher.Constraint("Coincident", 2, 1, 0, 1),
    Sketcher.Constraint("Coincident", 3, 1, 4, 1),
    Sketcher.Constraint("Coincident", 4, 2, 5, 2),
    Sketcher.Constraint("Coincident", 5, 1, 3, 2),
    Sketcher.Constraint("Tangent", 6, 2, 7, 1),
    Sketcher.Constraint("Tangent", 7, 2, 8, 2),
    Sketcher.Constraint("Tangent", 8, 1, 9, 1),
    Sketcher.Constraint("Tangent", 9, 2, 6, 1),
    Sketcher.Constraint("Tangent", 10, 2, 11, 1),
    Sketcher.Constraint("Tangent", 11, 2, 12, 2),
    Sketcher.Constraint("Tangent", 12, 1, 13, 1),
    Sketcher.Constraint("Tangent", 13, 2, 10, 1),
    Sketcher.Constraint("Tangent", 14, 1, 15, 1),
    Sketcher.Constraint("Tangent", 15, 2, 16, 1),
    Sketcher.Constraint("Tangent", 16, 2, 17, 1),
    Sketcher.Constraint("Tangent", 17, 2, 14, 2),
    Sketcher.Constraint("Tangent", 18, 2, 19, 1),
    Sketcher.Constraint("Tangent", 19, 2, 20, 2),
    Sketcher.Constraint("Tangent", 20, 1, 21, 1),
    Sketcher.Constraint("Tangent", 21, 2, 18, 1),
    Sketcher.Constraint("Tangent", 22, 2, 23, 1),
    Sketcher.Constraint("Tangent", 23, 2, 24, 2),
    Sketcher.Constraint("Tangent", 24, 1, 25, 1),
    Sketcher.Constraint("Tangent", 25, 2, 22, 1),
    Sketcher.Constraint("Tangent", 26, 2, 27, 1),
    Sketcher.Constraint("Tangent", 27, 2, 28, 2),
    Sketcher.Constraint("Tangent", 28, 1, 29, 1),
    Sketcher.Constraint("Tangent", 29, 2, 26, 1),
    Sketcher.Constraint("Tangent", 30, 2, 31, 1),
    Sketcher.Constraint("Tangent", 31, 2, 32, 2),
    Sketcher.Constraint("Tangent", 32, 1, 33, 1),
    Sketcher.Constraint("Tangent", 33, 2, 30, 1),
    Sketcher.Constraint("Tangent", 34, 2, 35, 1),
    Sketcher.Constraint("Tangent", 35, 2, 36, 2),
    Sketcher.Constraint("Tangent", 36, 1, 37, 1),
    Sketcher.Constraint("Tangent", 37, 2, 34, 1),
    Sketcher.Constraint("Tangent", 38, 2, 39, 1),
    Sketcher.Constraint("Tangent", 39, 2, 40, 2),
    Sketcher.Constraint("Tangent", 40, 1, 41, 1),
    Sketcher.Constraint("Tangent", 41, 2, 38, 1),
    Sketcher.Constraint("Tangent", 42, 2, 43, 1),
    Sketcher.Constraint("Tangent", 43, 2, 44, 2),
    Sketcher.Constraint("Tangent", 44, 1, 45, 1),
    Sketcher.Constraint("Tangent", 45, 2, 42, 1),
    Sketcher.Constraint("Tangent", 46, 2, 47, 1),
    Sketcher.Constraint("Tangent", 47, 2, 48, 2),
    Sketcher.Constraint("Tangent", 48, 1, 49, 1),
    Sketcher.Constraint("Tangent", 49, 2, 46, 1),
    Sketcher.Constraint("Tangent", 50, 2, 51, 1),
    Sketcher.Constraint("Tangent", 51, 2, 52, 2),
    Sketcher.Constraint("Tangent", 52, 1, 53, 1),
    Sketcher.Constraint("Tangent", 53, 2, 50, 1),
    Sketcher.Constraint("Tangent", 54, 2, 55, 1),
    Sketcher.Constraint("Tangent", 55, 2, 56, 2),
    Sketcher.Constraint("Tangent", 56, 1, 57, 1),
    Sketcher.Constraint("Tangent", 57, 2, 54, 1),
    Sketcher.Constraint("Tangent", 58, 2, 59, 1),
    Sketcher.Constraint("Tangent", 59, 2, 60, 2),
    Sketcher.Constraint("Tangent", 60, 1, 61, 1),
    Sketcher.Constraint("Tangent", 61, 2, 58, 1),
    Sketcher.Constraint("Tangent", 62, 2, 63, 1),
    Sketcher.Constraint("Tangent", 63, 2, 64, 2),
    Sketcher.Constraint("Tangent", 64, 1, 65, 1),
    Sketcher.Constraint("Tangent", 65, 2, 62, 1),
    Sketcher.Constraint("Tangent", 66, 2, 67, 1),
    Sketcher.Constraint("Tangent", 67, 2, 68, 2),
    Sketcher.Constraint("Tangent", 68, 1, 69, 1),
    Sketcher.Constraint("Tangent", 69, 2, 66, 1),
    Sketcher.Constraint("Horizontal", 0),
    Sketcher.Constraint("Horizontal", 4),
    Sketcher.Constraint("Coincident", 3, 3, 1, 3),
    Sketcher.Constraint("Coincident", 5, 3, 2, 3),
    Sketcher.Constraint("Coincident", 6, 3, 1, 3),
    Sketcher.Constraint("Coincident", 8, 3, 1, 3),
    Sketcher.Constraint("Coincident", 10, 3, 1, 3),
    Sketcher.Constraint("Coincident", 12, 3, 1, 3),
    Sketcher.Constraint("Coincident", 14, 3, 1, 3),
    Sketcher.Constraint("Coincident", 16, 3, 1, 3),
    Sketcher.Constraint("Coincident", 18, 3, 1, 3),
    Sketcher.Constraint("Coincident", 20, 3, 1, 3),
    Sketcher.Constraint("Coincident", 22, 3, 1, 3),
    Sketcher.Constraint("Coincident", 24, 3, 1, 3),
    Sketcher.Constraint("Coincident", 26, 3, 1, 3),
    Sketcher.Constraint("Coincident", 28, 3, 1, 3),
    Sketcher.Constraint("Coincident", 30, 3, 1, 3),
    Sketcher.Constraint("Coincident", 32, 3, 1, 3),
    Sketcher.Constraint("Coincident", 34, 3, 1, 3),
    Sketcher.Constraint("Coincident", 36, 3, 1, 3),
    Sketcher.Constraint("Coincident", 38, 3, 2, 3),
    Sketcher.Constraint("Coincident", 40, 3, 2, 3),
    Sketcher.Constraint("Coincident", 42, 3, 2, 3),
    Sketcher.Constraint("Coincident", 44, 3, 2, 3),
    Sketcher.Constraint("Coincident", 46, 3, 2, 3),
    Sketcher.Constraint("Coincident", 48, 3, 2, 3),
    Sketcher.Constraint("Coincident", 50, 3, 2, 3),
    Sketcher.Constraint("Coincident", 52, 3, 2, 3),
    Sketcher.Constraint("Coincident", 54, 3, 2, 3),
    Sketcher.Constraint("Coincident", 56, 3, 2, 3),
    Sketcher.Constraint("Coincident", 58, 3, 2, 3),
    Sketcher.Constraint("Coincident", 60, 3, 2, 3),
    Sketcher.Constraint("Coincident", 62, 3, 2, 3),
    Sketcher.Constraint("Coincident", 64, 3, 2, 3),
    Sketcher.Constraint("Coincident", 66, 3, 2, 3),
    Sketcher.Constraint("Coincident", 68, 3, 2, 3),
    Sketcher.Constraint("Equal", 1, 2),
    Sketcher.Constraint("Equal", 2, 3),
    Sketcher.Constraint("Equal", 3, 5),
    Sketcher.Constraint("Equal", 6, 10),
    Sketcher.Constraint("Equal", 9, 11),
    Sketcher.Constraint("Equal", 12, 14),
    Sketcher.Constraint("Equal", 13, 15),
    Sketcher.Constraint("Equal", 16, 18),
    Sketcher.Constraint("Equal", 17, 19),
    Sketcher.Constraint("Equal", 18, 22),
    Sketcher.Constraint("Equal", 21, 23),
    Sketcher.Constraint("Equal", 22, 26),
    Sketcher.Constraint("Equal", 25, 27),
    Sketcher.Constraint("Equal", 26, 30),
    Sketcher.Constraint("Equal", 29, 31),
    Sketcher.Constraint("Equal", 30, 34),
    Sketcher.Constraint("Equal", 33, 35),
    Sketcher.Constraint("Equal", 34, 38),
    Sketcher.Constraint("Equal", 37, 39),
    Sketcher.Constraint("Equal", 38, 42),
    Sketcher.Constraint("Equal", 41, 43),
    Sketcher.Constraint("Equal", 42, 46),
    Sketcher.Constraint("Equal", 45, 47),
    Sketcher.Constraint("Equal", 46, 50),
    Sketcher.Constraint("Equal", 49, 51),
    Sketcher.Constraint("Equal", 50, 54),
    Sketcher.Constraint("Equal", 53, 55),
    Sketcher.Constraint("Equal", 54, 58),
    Sketcher.Constraint("Equal", 57, 59),
    Sketcher.Constraint("Equal", 58, 62),
    Sketcher.Constraint("Equal", 61, 63),
    Sketcher.Constraint("Equal", 62, 66),
    Sketcher.Constraint("Equal", 65, 67),
    Sketcher.Constraint("Horizontal", 1, 3, 2, 3),
    Sketcher.Constraint("Horizontal", 9, 3, 11, 3),
    Sketcher.Constraint("Horizontal", 7, 3, 13, 3),
    Sketcher.Constraint("Horizontal", 25, 3, 27, 3),
    Sketcher.Constraint("Horizontal", 23, 3, 29, 3),
    Sketcher.Constraint("Horizontal", 21, 3, 31, 3),
    Sketcher.Constraint("Horizontal", 19, 3, 33, 3),
    Sketcher.Constraint("Horizontal", 15, 3, 35, 3),
    Sketcher.Constraint("Horizontal", 17, 3, 37, 3),
    Sketcher.Constraint("Horizontal", 37, 3, 39, 3),
    Sketcher.Constraint("Horizontal", 35, 3, 41, 3),
    Sketcher.Constraint("Horizontal", 13, 3, 43, 3),
    Sketcher.Constraint("Horizontal", 11, 3, 45, 3),
    Sketcher.Constraint("Horizontal", 45, 3, 47, 3),
    Sketcher.Constraint("Horizontal", 43, 3, 49, 3),
    Sketcher.Constraint("Horizontal", 33, 3, 51, 3),
    Sketcher.Constraint("Horizontal", 31, 3, 53, 3),
    Sketcher.Constraint("Horizontal", 29, 3, 55, 3),
    Sketcher.Constraint("Horizontal", 27, 3, 57, 3),
    Sketcher.Constraint("Horizontal", 57, 3, 59, 3),
    Sketcher.Constraint("Horizontal", 55, 3, 61, 3),
    Sketcher.Constraint("Horizontal", 53, 3, 63, 3),
    Sketcher.Constraint("Horizontal", 51, 3, 65, 3),
    Sketcher.Constraint("Horizontal", 41, 3, 67, 3),
    Sketcher.Constraint("Horizontal", 39, 3, 69, 3),
    Sketcher.Constraint("Vertical", 15, 3, 19, 3),
    Sketcher.Constraint("Vertical", 17, 3, 21, 3),
    Sketcher.Constraint("Vertical", 9, 3, 23, 3),
    Sketcher.Constraint("Vertical", 7, 3, 25, 3),
    Sketcher.Constraint("Vertical", 0, 2, 3, 1),
    Sketcher.Constraint("Radius", 1, Q("60 mm")),
    Sketcher.Constraint("Radius", 7, Q("2 mm")),
    Sketcher.Constraint("Radius", 6, Q("46.5 mm")),
    Sketcher.Constraint("DistanceX", 0, 2, 0, 1, Q("25.294628 mm")),
    Sketcher.Constraint("DistanceX", 15, 2, -1, 1, Q("95.8181 mm")),
    Sketcher.Constraint("DistanceX", -1, 1, 41, 2, Q("14.1819 mm")),
    Sketcher.Constraint("DistanceX", 1, 3, -1, 1, Q("55.547918 mm")),
    Sketcher.Constraint("DistanceY", -1, 1, 1, 3, Q("0.182639 mm")),
    Sketcher.Constraint("DistanceX", 7, 3, -1, 1, Q("77.797918 mm")),
    Sketcher.Constraint("DistanceY", -1, 1, 9, 3, Q("43.166339 mm")),
    Sketcher.Constraint("DistanceY", 21, 3, -1, 1, Q("11.334808 mm")),
])
pocket8 = body.newObject("PartDesign::Pocket", "Pocket007")
pocket8.Profile = sketch10
pocket8.Length = 250
doc.recompute()

fillet2 = body.newObject("PartDesign::Fillet", "Fillet001")
fillet2.Base = (pocket8, edges_at(pocket8, [(-13.195, 42.683, 1.5)]))
fillet2.Radius = 1
doc.recompute()

fillet3 = body.newObject("PartDesign::Fillet", "Fillet002")
fillet3.Base = (fillet2, edges_at(fillet2, [(12.099, 42.683, 1.5)]))
fillet3.Radius = 1
doc.recompute()

fillet4 = body.newObject("PartDesign::Fillet", "Fillet003")
fillet4.Base = (fillet3, edges_at(fillet3, [(-0.548, 24.162, 1.5)]))
fillet4.Radius = 1
doc.recompute()

fillet5 = body.newObject("PartDesign::Fillet", "Fillet004")
fillet5.Base = (fillet4, edges_at(fillet4, [(-0.548, -23.797, 1.5)]))
fillet5.Radius = 1
doc.recompute()

fillet6 = body.newObject("PartDesign::Fillet", "Fillet005")
fillet6.Base = (fillet5, edges_at(fillet5, [(-13.195, -42.317, 1.5)]))
fillet6.Radius = 1
doc.recompute()

fillet7 = body.newObject("PartDesign::Fillet", "Fillet006")
fillet7.Base = (fillet6, edges_at(fillet6, [(12.099, -42.317, 1.5)]))
fillet7.Radius = 1

doc.recompute()
